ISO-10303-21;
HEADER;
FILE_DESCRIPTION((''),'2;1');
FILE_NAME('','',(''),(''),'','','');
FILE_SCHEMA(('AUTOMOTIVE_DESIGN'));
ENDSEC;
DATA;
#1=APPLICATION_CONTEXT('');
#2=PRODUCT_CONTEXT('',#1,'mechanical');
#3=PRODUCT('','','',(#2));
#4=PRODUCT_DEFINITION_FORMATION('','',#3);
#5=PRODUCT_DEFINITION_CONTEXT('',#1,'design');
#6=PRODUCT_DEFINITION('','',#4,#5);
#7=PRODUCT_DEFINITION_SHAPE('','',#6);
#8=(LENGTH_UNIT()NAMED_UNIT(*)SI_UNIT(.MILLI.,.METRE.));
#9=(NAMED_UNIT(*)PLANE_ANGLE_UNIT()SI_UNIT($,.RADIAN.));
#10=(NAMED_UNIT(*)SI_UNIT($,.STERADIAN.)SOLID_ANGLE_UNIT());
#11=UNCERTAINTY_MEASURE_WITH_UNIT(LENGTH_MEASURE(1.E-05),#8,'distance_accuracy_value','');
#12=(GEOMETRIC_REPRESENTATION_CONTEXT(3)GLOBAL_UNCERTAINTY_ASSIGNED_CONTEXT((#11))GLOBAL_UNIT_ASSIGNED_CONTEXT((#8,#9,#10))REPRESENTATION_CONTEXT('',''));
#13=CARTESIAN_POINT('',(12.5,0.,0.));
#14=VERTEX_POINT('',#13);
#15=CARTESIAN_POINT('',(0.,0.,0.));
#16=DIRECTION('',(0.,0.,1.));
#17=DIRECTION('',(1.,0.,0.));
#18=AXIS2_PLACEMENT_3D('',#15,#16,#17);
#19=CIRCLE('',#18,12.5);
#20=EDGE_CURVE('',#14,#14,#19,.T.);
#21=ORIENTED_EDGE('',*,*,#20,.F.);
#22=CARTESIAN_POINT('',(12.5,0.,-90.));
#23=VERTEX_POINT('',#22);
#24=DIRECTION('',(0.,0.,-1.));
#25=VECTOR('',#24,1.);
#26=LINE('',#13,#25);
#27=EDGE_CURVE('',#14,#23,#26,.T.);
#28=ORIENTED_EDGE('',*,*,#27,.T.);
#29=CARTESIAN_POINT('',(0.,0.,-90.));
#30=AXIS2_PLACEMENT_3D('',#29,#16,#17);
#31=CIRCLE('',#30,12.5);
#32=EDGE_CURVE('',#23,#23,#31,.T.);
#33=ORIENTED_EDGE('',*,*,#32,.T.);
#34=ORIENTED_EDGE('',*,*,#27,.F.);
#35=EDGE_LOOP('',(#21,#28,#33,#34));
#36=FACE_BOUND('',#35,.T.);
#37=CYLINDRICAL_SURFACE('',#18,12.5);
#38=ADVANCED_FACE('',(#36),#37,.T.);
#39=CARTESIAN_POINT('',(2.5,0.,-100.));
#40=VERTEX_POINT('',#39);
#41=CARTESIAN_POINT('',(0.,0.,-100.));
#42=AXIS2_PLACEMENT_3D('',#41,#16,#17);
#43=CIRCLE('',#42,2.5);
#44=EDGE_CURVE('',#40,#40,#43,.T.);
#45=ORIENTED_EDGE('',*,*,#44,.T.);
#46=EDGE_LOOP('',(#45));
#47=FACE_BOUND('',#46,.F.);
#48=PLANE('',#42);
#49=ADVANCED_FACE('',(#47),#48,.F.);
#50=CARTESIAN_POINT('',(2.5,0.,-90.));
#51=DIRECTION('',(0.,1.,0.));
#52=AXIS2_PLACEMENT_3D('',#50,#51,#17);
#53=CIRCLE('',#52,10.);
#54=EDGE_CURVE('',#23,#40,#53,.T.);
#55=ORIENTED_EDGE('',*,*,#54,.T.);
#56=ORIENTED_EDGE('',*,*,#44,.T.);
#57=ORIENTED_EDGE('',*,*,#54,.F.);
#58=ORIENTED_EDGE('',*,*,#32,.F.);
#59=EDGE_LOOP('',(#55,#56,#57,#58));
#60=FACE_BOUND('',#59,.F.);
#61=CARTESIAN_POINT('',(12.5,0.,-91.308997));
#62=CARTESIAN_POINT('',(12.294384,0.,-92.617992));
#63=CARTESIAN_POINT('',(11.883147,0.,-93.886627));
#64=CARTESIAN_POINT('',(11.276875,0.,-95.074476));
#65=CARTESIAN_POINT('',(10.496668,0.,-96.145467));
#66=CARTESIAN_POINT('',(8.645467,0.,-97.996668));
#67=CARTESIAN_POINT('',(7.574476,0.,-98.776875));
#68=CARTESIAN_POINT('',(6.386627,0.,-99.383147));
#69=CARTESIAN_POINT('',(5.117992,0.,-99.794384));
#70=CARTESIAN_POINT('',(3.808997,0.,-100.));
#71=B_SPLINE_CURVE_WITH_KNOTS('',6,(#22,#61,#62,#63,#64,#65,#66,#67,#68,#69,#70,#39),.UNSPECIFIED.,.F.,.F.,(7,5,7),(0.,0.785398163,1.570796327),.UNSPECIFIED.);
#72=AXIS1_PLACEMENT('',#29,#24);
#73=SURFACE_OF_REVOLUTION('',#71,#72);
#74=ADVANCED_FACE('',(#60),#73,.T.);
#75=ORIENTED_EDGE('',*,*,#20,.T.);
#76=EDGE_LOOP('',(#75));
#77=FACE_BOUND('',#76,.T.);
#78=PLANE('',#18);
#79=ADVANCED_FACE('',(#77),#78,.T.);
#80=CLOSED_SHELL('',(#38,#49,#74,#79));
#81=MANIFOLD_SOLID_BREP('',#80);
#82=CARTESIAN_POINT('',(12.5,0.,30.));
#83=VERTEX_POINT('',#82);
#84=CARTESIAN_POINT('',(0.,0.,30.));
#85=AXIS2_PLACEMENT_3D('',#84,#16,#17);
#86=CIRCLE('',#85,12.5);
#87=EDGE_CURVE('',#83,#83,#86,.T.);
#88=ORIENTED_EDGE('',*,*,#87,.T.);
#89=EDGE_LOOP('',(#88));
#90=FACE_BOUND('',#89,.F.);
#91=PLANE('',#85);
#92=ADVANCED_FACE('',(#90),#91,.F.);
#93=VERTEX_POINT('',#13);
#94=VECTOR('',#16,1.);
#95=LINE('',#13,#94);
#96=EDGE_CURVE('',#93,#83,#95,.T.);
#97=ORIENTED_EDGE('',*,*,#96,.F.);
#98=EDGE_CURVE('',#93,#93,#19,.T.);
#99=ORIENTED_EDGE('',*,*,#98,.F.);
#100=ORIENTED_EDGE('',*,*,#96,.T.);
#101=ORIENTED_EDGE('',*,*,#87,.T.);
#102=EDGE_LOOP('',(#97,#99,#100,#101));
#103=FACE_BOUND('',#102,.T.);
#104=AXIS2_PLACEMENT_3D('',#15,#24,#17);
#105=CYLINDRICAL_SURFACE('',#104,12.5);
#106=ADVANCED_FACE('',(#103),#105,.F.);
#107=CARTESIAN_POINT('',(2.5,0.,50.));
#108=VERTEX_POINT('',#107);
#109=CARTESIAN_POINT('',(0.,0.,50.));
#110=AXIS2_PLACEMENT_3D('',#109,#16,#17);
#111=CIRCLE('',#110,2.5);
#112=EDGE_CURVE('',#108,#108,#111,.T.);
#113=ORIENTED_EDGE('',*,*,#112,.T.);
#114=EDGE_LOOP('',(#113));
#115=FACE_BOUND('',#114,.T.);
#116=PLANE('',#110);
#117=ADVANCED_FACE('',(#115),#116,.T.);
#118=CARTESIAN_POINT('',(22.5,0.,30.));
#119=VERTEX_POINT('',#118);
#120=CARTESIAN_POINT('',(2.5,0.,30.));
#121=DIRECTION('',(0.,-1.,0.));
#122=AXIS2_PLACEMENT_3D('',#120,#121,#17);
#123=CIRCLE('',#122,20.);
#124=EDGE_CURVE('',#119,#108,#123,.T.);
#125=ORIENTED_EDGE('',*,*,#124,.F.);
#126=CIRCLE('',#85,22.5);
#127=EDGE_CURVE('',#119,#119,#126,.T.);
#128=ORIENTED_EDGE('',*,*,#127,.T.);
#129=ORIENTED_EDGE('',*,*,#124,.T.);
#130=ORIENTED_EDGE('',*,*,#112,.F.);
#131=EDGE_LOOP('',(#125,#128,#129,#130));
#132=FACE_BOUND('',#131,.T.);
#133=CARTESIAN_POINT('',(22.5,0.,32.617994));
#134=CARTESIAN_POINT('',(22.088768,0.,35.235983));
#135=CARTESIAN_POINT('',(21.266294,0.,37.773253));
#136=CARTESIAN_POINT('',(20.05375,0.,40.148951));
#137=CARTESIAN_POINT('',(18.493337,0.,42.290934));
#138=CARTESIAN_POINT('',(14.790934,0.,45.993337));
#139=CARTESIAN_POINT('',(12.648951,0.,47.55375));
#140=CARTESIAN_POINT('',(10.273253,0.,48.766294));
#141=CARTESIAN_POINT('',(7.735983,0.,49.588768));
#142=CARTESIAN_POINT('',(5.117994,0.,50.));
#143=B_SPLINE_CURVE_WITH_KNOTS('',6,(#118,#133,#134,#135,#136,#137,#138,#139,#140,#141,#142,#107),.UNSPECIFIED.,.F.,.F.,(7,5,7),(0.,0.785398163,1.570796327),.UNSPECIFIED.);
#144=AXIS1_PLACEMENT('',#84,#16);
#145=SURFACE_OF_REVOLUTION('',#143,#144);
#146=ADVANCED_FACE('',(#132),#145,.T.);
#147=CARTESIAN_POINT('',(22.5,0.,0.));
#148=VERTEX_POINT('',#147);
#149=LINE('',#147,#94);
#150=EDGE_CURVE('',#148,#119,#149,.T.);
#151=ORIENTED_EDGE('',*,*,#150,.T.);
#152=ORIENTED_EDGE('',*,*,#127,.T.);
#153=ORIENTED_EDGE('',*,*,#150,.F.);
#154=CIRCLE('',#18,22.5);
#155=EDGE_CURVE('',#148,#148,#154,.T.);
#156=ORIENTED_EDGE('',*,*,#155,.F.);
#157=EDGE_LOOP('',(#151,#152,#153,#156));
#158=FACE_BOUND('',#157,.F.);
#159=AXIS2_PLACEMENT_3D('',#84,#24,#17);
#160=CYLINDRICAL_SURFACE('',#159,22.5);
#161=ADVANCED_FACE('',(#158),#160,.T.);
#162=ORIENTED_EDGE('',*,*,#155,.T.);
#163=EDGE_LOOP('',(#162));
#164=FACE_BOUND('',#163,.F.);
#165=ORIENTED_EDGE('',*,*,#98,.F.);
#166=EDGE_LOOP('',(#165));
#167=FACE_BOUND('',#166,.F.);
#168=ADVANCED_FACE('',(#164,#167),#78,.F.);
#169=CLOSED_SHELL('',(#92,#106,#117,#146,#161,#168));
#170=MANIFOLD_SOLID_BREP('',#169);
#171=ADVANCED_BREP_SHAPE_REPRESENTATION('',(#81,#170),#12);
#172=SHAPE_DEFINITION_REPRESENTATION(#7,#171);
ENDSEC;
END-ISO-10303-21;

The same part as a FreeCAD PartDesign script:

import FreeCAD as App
import Part
import Sketcher

V = App.Vector


def edges_at(feature, points):
    """Names of the edges that pass closest to the given points."""
    edges = feature.Shape.Edges
    near = lambda p: min(range(len(edges)), key=lambda i: edges[i].distToShape(Part.Vertex(*p))[0])
    return sorted({f"Edge{near(p) + 1}" for p in points})

doc = App.newDocument("Part")
body = doc.addObject("PartDesign::Body", "Body")
body.AllowCompound = True

# Sketch on XY plane
sketch1 = body.newObject("Sketcher::SketchObject", "Sketch")
sketch1.AttachmentSupport = (doc.getObject("XY_Plane"), [""])
sketch1.MapMode = "FlatFace"
sketch1.addGeometry([
    Part.Circle(V(0, 0, 0), V(0, 0, 1), 22),
    Part.Circle(V(0, 0, 0), V(0, 0, 1), 12),
], False)
sketch1.addConstraint([
    Sketcher.Constraint("Coincident", 0, 3, -1, 1),
    Sketcher.Constraint("Coincident", 1, 3, -1, 1),
    Sketcher.Constraint("Diameter", 0, 45.0),
    Sketcher.Constraint("Diameter", 1, 25.0),
])
pad1 = body.newObject("PartDesign::Pad", "Pad")
pad1.Profile = sketch1
pad1.Length = 30

# Sketch on XY plane
sketch2 = body.newObject("Sketcher::SketchObject", "Sketch001")
sketch2.AttachmentSupport = (doc.getObject("XY_Plane"), [""])
sketch2.MapMode = "FlatFace"
sketch2.addGeometry(Part.Circle(V(0, 0, 0), V(0, 0, 1), 12), False)
sketch2.addConstraint([
    Sketcher.Constraint("Coincident", 0, 3, -1, 1),
    Sketcher.Constraint("Diameter", 0, 25.0),
])
pad2 = body.newObject("PartDesign::Pad", "Pad001")
pad2.Profile = sketch2
pad2.Length = 100
pad2.Reversed = True
doc.recompute()

fillet = body.newObject("PartDesign::Fillet", "Fillet")
fillet.Base = (pad2, edges_at(pad2, [(-12.5, 0, -100)]))
fillet.Radius = 10

# Sketch on XY plane
sketch3 = body.newObject("Sketcher::SketchObject", "Sketch002")
sketch3.AttachmentSupport = (doc.getObject("XY_Plane"), [""])
sketch3.MapMode = "FlatFace"
sketch3.AttachmentOffset = App.Placement(V(0, 0, 30), App.Rotation())
sketch3.addGeometry(Part.Circle(V(0, 0, 0), V(0, 0, 1), 22), False)
sketch3.addConstraint([
    Sketcher.Constraint("Coincident", 0, 3, -1, 1),
    Sketcher.Constraint("Diameter", 0, 45.0),
])
pad3 = body.newObject("PartDesign::Pad", "Pad002")
pad3.Profile = sketch3
pad3.Length = 20
doc.recompute()

fillet2 = body.newObject("PartDesign::Fillet", "Fillet001")
fillet2.Base = (pad3, edges_at(pad3, [(-22.5, 0, 50)]))
fillet2.Radius = 20

doc.recompute()
